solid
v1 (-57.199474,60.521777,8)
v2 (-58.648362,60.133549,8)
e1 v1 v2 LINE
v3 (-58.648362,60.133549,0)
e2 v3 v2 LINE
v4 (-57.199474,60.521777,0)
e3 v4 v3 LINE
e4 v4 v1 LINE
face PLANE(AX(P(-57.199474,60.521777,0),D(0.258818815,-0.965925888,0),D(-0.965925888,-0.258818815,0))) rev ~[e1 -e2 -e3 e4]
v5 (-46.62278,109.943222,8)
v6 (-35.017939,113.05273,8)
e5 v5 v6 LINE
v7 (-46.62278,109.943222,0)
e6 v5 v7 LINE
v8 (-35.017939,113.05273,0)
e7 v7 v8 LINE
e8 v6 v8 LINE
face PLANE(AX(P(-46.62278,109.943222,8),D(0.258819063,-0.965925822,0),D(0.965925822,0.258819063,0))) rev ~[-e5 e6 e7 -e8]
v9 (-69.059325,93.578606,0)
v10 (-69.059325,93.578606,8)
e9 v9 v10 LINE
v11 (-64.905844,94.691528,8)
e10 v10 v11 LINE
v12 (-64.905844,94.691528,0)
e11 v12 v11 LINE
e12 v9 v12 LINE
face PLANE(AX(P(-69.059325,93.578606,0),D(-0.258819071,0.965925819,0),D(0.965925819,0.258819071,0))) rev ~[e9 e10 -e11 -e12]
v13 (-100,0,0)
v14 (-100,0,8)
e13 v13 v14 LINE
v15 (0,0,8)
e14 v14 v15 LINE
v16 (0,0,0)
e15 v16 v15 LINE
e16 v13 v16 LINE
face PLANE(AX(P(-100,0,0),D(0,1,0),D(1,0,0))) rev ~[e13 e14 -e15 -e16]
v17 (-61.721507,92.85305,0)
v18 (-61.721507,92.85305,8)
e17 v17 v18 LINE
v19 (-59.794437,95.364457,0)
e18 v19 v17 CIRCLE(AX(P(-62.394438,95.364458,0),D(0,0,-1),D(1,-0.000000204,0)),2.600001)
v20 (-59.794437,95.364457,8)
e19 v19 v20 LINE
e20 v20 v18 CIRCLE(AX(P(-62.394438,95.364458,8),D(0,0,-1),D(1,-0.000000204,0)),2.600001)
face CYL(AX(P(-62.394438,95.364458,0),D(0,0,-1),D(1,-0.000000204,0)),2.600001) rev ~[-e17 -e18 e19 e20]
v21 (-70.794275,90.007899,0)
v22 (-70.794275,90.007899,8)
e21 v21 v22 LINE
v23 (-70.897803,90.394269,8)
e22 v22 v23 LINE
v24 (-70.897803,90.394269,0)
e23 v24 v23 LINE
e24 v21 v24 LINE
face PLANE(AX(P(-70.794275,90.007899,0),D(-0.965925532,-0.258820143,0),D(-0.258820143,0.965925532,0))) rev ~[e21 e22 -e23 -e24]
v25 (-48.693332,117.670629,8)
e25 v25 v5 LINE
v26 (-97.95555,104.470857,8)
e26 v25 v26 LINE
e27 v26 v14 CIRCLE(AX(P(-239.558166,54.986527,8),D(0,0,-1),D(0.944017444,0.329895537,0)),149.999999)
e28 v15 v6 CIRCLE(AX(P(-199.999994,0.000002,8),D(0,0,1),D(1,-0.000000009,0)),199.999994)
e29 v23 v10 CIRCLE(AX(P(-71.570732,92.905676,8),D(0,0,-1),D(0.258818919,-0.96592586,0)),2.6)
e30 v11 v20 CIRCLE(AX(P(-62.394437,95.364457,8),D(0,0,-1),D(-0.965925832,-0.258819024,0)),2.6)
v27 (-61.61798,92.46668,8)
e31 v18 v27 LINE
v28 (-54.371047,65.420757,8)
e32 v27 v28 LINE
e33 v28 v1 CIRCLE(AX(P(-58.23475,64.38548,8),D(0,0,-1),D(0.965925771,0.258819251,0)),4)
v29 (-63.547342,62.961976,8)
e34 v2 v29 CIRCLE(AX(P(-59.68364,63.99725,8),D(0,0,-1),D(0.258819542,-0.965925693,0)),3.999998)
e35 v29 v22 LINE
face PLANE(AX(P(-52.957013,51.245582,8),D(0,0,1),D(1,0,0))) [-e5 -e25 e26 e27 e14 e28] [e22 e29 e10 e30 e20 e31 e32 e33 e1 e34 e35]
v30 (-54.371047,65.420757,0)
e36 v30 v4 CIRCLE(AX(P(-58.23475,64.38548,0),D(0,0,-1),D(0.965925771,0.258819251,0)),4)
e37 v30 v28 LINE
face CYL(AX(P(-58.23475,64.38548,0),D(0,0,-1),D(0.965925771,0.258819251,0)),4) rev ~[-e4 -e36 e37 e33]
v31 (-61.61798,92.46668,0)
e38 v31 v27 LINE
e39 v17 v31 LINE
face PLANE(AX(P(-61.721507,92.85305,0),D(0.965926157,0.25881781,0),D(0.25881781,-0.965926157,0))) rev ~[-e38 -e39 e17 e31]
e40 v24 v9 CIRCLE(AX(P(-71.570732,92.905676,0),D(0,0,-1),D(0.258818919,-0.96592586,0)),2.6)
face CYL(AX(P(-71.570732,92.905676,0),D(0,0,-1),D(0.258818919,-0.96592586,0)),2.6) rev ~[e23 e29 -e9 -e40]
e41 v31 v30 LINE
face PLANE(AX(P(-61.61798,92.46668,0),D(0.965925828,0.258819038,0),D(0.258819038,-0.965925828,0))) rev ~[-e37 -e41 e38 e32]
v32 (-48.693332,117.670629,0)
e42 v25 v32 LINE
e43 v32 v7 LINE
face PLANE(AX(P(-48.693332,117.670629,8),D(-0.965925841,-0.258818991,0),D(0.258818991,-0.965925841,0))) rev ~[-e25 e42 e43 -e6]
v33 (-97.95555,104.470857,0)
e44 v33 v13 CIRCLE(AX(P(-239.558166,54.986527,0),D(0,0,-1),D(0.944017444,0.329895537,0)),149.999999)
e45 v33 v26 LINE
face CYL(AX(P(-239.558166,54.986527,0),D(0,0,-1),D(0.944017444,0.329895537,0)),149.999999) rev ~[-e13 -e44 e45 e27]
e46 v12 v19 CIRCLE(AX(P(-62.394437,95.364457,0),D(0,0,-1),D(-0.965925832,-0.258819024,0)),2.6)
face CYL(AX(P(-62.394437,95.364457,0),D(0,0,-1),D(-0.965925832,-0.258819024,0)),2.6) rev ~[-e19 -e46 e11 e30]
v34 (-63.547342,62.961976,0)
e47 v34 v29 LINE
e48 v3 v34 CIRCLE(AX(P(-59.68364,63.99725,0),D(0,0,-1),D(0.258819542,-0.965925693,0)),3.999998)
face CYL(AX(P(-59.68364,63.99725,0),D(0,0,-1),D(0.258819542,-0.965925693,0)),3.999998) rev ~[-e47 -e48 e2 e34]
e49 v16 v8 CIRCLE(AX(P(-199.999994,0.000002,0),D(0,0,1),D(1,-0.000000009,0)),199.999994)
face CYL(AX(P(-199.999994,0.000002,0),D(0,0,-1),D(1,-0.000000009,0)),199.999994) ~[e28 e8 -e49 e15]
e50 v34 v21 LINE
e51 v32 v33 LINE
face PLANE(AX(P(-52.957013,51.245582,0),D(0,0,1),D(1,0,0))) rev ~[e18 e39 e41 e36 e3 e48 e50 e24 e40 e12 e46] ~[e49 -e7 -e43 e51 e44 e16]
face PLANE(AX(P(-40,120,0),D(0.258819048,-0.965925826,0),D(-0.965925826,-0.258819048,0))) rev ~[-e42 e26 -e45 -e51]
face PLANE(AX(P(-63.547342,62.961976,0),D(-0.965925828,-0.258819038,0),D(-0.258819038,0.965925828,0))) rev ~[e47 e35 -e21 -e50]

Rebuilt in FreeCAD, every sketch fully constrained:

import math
import FreeCAD as App
import Part
import Sketcher

V = App.Vector
Q = App.Units.Quantity

doc = App.newDocument("Part")
body = doc.addObject("PartDesign::Body", "Body")

# Sketch on XY plane
sketch1 = doc.addObject("Sketcher::SketchObject", "Sketch")
body.addObject(sketch1)
sketch1.AttachmentSupport = (doc.XY_Plane, [""])
sketch1.MapMode = "FlatFace"
sketch1.addGeometry([
    Part.LineSegment(V(-100, 0, 0), V(0, 0, 0)),  # 0
    Part.ArcOfCircle(Part.Circle(V(-200, 0, 0), V(0, 0, 1), 200), math.radians(0), math.radians(37)),  # 1
    Part.LineSegment(V(-40, 120, 0), V(-97.96, 104.47, 0)),  # 2
    Part.ArcOfCircle(Part.Circle(V(-239.56, 54.99, 0), V(0, 0, 1), 150), math.radians(-22), math.radians(19)),  # 3
    Part.ArcOfCircle(Part.Circle(V(-58.23, 64.39, 0), V(0, 0, 1), 4), math.radians(-75), math.radians(15)),  # 4
    Part.LineSegment(V(-57.2, 60.52, 0), V(-58.65, 60.13, 0)),  # 5
    Part.ArcOfCircle(Part.Circle(V(-59.68, 64, 0), V(0, 0, 1), 4), math.radians(-165), math.radians(-75)),  # 6
    Part.LineSegment(V(-63.55, 62.96, 0), V(-70.79, 90.01, 0)),  # 7
    Part.LineSegment(V(-70.79, 90.01, 0), V(-70.9, 90.39, 0)),  # 8
    Part.ArcOfCircle(Part.Circle(V(-71.57, 92.91, 0), V(0, 0, 1), 2.6), math.radians(15), math.radians(285)),  # 9
    Part.LineSegment(V(-69.06, 93.58, 0), V(-64.91, 94.69, 0)),  # 10
    Part.ArcOfCircle(Part.Circle(V(-62.39, 95.36, 0), V(0, 0, 1), 2.6), math.radians(0), math.radians(195)),  # 11
    Part.ArcOfCircle(Part.Circle(V(-62.39, 95.36, 0), V(0, 0, 1), 2.6), math.radians(-75), math.radians(0)),  # 12
    Part.LineSegment(V(-61.72, 92.85, 0), V(-61.62, 92.47, 0)),  # 13
    Part.LineSegment(V(-61.62, 92.47, 0), V(-54.37, 65.42, 0)),  # 14
], False)
sketch1.addConstraint([
    Sketcher.Constraint("Coincident", 0, 2, 1, 1),
    Sketcher.Constraint("Coincident", 1, 2, 2, 1),
    Sketcher.Constraint("Coincident", 2, 2, 3, 2),
    Sketcher.Constraint("Coincident", 3, 1, 0, 1),
    Sketcher.Constraint("Tangent", 4, 1, 5, 1),
    Sketcher.Constraint("Tangent", 5, 2, 6, 2),
    Sketcher.Constraint("Tangent", 6, 1, 7, 1),
    Sketcher.Constraint("Coincident", 7, 2, 8, 1),
    Sketcher.Constraint("Coincident", 8, 2, 9, 2),
    Sketcher.Constraint("Coincident", 9, 1, 10, 1),
    Sketcher.Constraint("Coincident", 10, 2, 11, 2),
    Sketcher.Constraint("Tangent", 11, 1, 12, 2),
    Sketcher.Constraint("Coincident", 12, 1, 13, 1),
    Sketcher.Constraint("Coincident", 13, 2, 14, 1),
    Sketcher.Constraint("Tangent", 14, 2, 4, 2),
    Sketcher.Constraint("Horizontal", 0),
    Sketcher.Constraint("Coincident", 0, 2, -1, 1),
    Sketcher.Constraint("Equal", 4, 6),
    Sketcher.Constraint("Equal", 9, 11),
    Sketcher.Constraint("Equal", 11, 12),
    Sketcher.Constraint("PointOnObject", 1, 3, -1),
    Sketcher.Constraint("Parallel", 2, 5),
    Sketcher.Constraint("Perpendicular", 5, 7),
    Sketcher.Constraint("Parallel", 7, 8),
    Sketcher.Constraint("Perpendicular", 8, 10),
    Sketcher.Constraint("Perpendicular", 10, 13),
    Sketcher.Constraint("Parallel", 13, 14),
    Sketcher.Constraint("Horizontal", 12, 3, 11, 1),
    Sketcher.Constraint("Equal", 8, 13),
    Sketcher.Constraint("Equal", 7, 14),
    Sketcher.Constraint("Radius", 3, 149.999999),
    Sketcher.Constraint("Radius", 4, 4.0),
    Sketcher.Constraint("Radius", 9, 2.6),
    Sketcher.Constraint("DistanceX", 0, 1, 0, 2, 100.0),
    Sketcher.Constraint("Angle", 2, Q("-165 deg")),
    Sketcher.Constraint("Distance", 2, 60.0),
    Sketcher.Constraint("Distance", 7, 28.0),
    Sketcher.Constraint("DistanceX", 1, 2, -1, 1, 40.0),
    Sketcher.Constraint("Distance", 5, 1.499999),
    Sketcher.Constraint("Distance", 8, 0.4),
    Sketcher.Constraint("Distance", 10, 4.3),
    Sketcher.Constraint("Radius", 1, 199.999994),
    Sketcher.Constraint("DistanceY", -1, 1, 7, 2, 90.007899),
    Sketcher.Constraint("DistanceY", 12, 3, 2, 2, 9.106399),
    Sketcher.Constraint("DistanceX", 2, 2, 4, 3, 39.7208),
    Sketcher.Constraint("DistanceY", -1, 1, 10, 2, 94.691528),
])
pad1 = doc.addObject("PartDesign::Pad", "Pad")
body.addObject(pad1)
pad1.Profile = sketch1
pad1.Length = 8

# Sketch on XY plane
sketch2 = doc.addObject("Sketcher::SketchObject", "Sketch001")
body.addObject(sketch2)
sketch2.AttachmentSupport = (doc.XY_Plane, [""])
sketch2.MapMode = "FlatFace"
sketch2.AttachmentOffset = App.Placement(V(0, 0, 8), App.Rotation())
sketch2.addGeometry([
    Part.LineSegment(V(-49, 118, 0), V(-47, 110, 0)),
    Part.LineSegment(V(-47, 110, 0), V(-35, 113, 0)),
    Part.ArcOfCircle(Part.Circle(V(-200, 0, 0), V(0, 0, 1), 200), math.radians(34.42), math.radians(36.87)),
    Part.LineSegment(V(-40, 120, 0), V(-49, 118, 0)),
], False)
sketch2.addConstraint([
    Sketcher.Constraint("Coincident", 0, 2, 1, 1),
    Sketcher.Constraint("Coincident", 1, 2, 2, 1),
    Sketcher.Constraint("Coincident", 2, 2, 3, 1),
    Sketcher.Constraint("Coincident", 3, 2, 0, 1),
    Sketcher.Constraint("Perpendicular", 0, 1),
    Sketcher.Constraint("Parallel", 1, 3),
    Sketcher.Constraint("Angle", 0, Q("-75.000003 deg")),
    Sketcher.Constraint("Distance", 0, 8.0),
    Sketcher.Constraint("Distance", 3, 8.999999),
    Sketcher.Constraint("DistanceX", 2, 2, -1, 1, 40.0),
    Sketcher.Constraint("DistanceY", -1, 1, 2, 2, 120.0),
    Sketcher.Constraint("Radius", 2, 199.999198),
    Sketcher.Constraint("DistanceX", 2, 3, 1, 2, 164.981402),
])
pocket1 = doc.addObject("PartDesign::Pocket", "Pocket")
body.addObject(pocket1)
pocket1.Profile = sketch2
pocket1.Type = "ThroughAll"

doc.recompute()
